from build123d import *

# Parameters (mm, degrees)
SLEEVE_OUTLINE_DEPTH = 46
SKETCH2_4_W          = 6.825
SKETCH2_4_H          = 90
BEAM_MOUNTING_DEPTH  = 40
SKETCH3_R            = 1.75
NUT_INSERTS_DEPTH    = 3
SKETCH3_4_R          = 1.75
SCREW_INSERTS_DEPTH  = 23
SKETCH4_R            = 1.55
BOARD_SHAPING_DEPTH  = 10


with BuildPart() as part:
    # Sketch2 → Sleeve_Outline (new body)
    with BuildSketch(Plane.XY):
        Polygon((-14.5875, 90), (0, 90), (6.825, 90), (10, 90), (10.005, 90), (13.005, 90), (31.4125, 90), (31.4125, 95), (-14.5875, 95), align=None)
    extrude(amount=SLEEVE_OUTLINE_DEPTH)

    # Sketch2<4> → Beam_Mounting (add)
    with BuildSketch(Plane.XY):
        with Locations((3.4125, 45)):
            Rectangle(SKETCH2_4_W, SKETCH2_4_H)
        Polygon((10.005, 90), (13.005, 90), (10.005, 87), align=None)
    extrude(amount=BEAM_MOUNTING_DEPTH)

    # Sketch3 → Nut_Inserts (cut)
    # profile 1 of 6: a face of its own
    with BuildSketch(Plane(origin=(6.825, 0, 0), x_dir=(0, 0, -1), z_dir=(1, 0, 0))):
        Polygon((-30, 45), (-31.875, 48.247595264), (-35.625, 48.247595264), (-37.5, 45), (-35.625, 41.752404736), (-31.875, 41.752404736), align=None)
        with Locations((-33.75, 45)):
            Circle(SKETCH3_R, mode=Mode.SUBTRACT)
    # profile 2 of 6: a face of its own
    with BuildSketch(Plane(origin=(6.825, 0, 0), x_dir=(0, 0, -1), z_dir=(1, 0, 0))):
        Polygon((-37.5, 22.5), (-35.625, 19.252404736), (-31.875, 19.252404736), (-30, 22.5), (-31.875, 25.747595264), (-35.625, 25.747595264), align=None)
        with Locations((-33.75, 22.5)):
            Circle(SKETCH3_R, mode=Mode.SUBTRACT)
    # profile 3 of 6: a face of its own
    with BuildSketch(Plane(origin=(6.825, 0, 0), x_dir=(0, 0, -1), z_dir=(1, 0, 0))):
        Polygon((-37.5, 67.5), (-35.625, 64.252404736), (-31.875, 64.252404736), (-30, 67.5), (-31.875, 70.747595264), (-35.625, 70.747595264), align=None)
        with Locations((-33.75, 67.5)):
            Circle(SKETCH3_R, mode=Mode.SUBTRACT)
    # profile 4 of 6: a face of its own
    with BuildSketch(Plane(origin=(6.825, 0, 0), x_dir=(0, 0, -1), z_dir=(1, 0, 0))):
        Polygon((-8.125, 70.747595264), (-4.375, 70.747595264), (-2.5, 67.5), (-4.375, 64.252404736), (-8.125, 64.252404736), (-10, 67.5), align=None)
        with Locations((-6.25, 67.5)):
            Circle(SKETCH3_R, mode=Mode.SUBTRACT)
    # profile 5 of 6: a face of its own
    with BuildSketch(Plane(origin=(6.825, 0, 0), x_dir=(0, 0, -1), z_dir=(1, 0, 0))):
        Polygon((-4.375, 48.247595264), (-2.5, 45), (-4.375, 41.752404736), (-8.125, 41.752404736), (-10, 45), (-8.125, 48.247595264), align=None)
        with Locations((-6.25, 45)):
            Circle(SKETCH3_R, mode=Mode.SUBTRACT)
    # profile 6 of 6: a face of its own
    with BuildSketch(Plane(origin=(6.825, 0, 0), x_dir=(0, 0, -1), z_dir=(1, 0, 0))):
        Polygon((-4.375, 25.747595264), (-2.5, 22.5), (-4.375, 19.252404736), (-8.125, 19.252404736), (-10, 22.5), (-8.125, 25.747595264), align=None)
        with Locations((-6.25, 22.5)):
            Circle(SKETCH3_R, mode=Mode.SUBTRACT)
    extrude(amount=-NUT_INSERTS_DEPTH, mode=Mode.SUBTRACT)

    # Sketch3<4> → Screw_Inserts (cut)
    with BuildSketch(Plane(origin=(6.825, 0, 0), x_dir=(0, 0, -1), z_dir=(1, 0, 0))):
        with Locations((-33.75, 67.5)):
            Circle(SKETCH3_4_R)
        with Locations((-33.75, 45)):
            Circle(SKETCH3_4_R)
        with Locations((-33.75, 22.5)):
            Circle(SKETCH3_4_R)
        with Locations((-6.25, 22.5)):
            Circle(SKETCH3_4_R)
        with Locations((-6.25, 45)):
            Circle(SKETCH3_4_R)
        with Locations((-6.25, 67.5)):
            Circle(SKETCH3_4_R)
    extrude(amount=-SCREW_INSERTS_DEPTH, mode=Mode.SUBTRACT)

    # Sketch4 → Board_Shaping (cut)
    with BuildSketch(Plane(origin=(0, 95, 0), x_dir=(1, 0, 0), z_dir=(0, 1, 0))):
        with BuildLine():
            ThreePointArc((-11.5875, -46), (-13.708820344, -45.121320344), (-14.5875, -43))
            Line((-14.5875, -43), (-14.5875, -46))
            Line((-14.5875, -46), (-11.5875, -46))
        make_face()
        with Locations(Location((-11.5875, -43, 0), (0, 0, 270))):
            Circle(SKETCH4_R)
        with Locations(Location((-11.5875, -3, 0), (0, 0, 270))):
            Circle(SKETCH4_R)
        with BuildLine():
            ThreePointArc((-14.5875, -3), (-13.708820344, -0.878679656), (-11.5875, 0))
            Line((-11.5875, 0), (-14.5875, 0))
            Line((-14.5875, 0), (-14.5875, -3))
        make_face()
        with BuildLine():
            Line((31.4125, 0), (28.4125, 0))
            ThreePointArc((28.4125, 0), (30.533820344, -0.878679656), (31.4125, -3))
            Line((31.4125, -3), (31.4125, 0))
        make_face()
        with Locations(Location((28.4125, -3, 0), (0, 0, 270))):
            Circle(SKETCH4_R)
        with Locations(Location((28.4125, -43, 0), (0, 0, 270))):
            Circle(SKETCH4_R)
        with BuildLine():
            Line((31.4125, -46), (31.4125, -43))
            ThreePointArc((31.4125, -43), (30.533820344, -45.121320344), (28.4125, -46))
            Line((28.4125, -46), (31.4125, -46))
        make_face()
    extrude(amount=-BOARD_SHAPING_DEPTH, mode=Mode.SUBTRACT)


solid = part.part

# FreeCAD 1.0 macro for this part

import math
import FreeCAD as App
import Part
import Sketcher
Q = App.Units.Quantity


def add_polygon(sketch, points):
    """Adds a closed chain of lines whose ends are joined by coincident constraints."""
    first, n = sketch.GeometryCount, len(points)
    for a, b in zip(points, points[1:] + points[:1]):
        sketch.addGeometry(Part.LineSegment(App.Vector(*a, 0), App.Vector(*b, 0)), False)
    for i in range(n):
        sketch.addConstraint(Sketcher.Constraint("Coincident", first + i, 2, first + (i + 1) % n, 1))

doc = App.newDocument("Part")
body = doc.addObject("PartDesign::Body", "Body")

# Sketch on XY plane
sketch1 = body.newObject("Sketcher::SketchObject", "Sketch")
sketch1.AttachmentSupport = (doc.getObject("XY_Plane"), [""])
sketch1.MapMode = "FlatFace"
add_polygon(sketch1, [(-15, 90), (31, 90), (31, 95), (-15, 95)])  # lines 0-3
sketch1.addConstraint(Sketcher.Constraint("Horizontal", 0))
sketch1.addConstraint(Sketcher.Constraint("Vertical", 1))
sketch1.addConstraint(Sketcher.Constraint("Horizontal", 2))
sketch1.addConstraint(Sketcher.Constraint("Vertical", 3))
sketch1.addConstraint(Sketcher.Constraint("DistanceX", 0, 1, 0, 2, 46.0))
sketch1.addConstraint(Sketcher.Constraint("DistanceY", 1, 1, 1, 2, 5.0))
sketch1.addConstraint(Sketcher.Constraint("DistanceY", -1, 1, 0, 2, 90.0))
sketch1.addConstraint(Sketcher.Constraint("DistanceX", -1, 1, 0, 2, 31.4125))
pad1 = body.newObject("PartDesign::Pad", "Pad")
pad1.Profile = sketch1
pad1.Length = 46

# Sketch on XY plane
sketch2 = body.newObject("Sketcher::SketchObject", "Sketch001")
sketch2.AttachmentSupport = (doc.getObject("XY_Plane"), [""])
sketch2.MapMode = "FlatFace"
add_polygon(sketch2, [(0, 90), (0, 0), (6.8, 0), (6.8, 90)])  # lines 0-3
add_polygon(sketch2, [(13, 90), (10, 90), (10, 87)])  # lines 4-6
sketch2.addConstraint(Sketcher.Constraint("Vertical", 0))
sketch2.addConstraint(Sketcher.Constraint("Horizontal", 1))
sketch2.addConstraint(Sketcher.Constraint("Vertical", 2))
sketch2.addConstraint(Sketcher.Constraint("Horizontal", 3))
sketch2.addConstraint(Sketcher.Constraint("Horizontal", 4))
sketch2.addConstraint(Sketcher.Constraint("Vertical", 5))
sketch2.addConstraint(Sketcher.Constraint("Coincident", 0, 2, -1, 1))
sketch2.addConstraint(Sketcher.Constraint("Horizontal", 3, 2, 4, 2))
sketch2.addConstraint(Sketcher.Constraint("Equal", 4, 5))
sketch2.addConstraint(Sketcher.Constraint("DistanceX", 4, 2, 4, 1, 3.0))
sketch2.addConstraint(Sketcher.Constraint("DistanceY", 0, 2, 0, 1, 90.0))
sketch2.addConstraint(Sketcher.Constraint("DistanceX", 1, 1, 1, 2, 6.825))
sketch2.addConstraint(Sketcher.Constraint("DistanceX", 2, 2, 4, 2, 3.18))
pad2 = body.newObject("PartDesign::Pad", "Pad001")
pad2.Profile = sketch2
pad2.Length = 40

# Sketch on YZ plane
sketch3 = body.newObject("Sketcher::SketchObject", "Sketch002")
sketch3.AttachmentSupport = (doc.getObject("YZ_Plane"), [""])
sketch3.MapMode = "FlatFace"
sketch3.AttachmentOffset = App.Placement(App.Vector(0, 0, 6.825), App.Rotation())
add_polygon(sketch3, [(45, 30), (48.2, 31.9), (48.2, 35.6), (45, 37.5), (41.8, 35.6), (41.8, 31.9)])  # lines 0-5
sketch3.addGeometry(Part.Circle(App.Vector(45, 33.8, 0), App.Vector(0, 0, 1), 1.8), False)  # 6
add_polygon(sketch3, [(22.5, 37.5), (19.3, 35.6), (19.3, 31.9), (22.5, 30), (25.7, 31.9), (25.7, 35.6)])  # lines 7-12
sketch3.addGeometry(Part.Circle(App.Vector(22.5, 33.8, 0), App.Vector(0, 0, 1), 1.8), False)  # 13
add_polygon(sketch3, [(67.5, 37.5), (64.3, 35.6), (64.3, 31.9), (67.5, 30), (70.7, 31.9), (70.7, 35.6)])  # lines 14-19
sketch3.addGeometry(Part.Circle(App.Vector(67.5, 33.8, 0), App.Vector(0, 0, 1), 1.8), False)  # 20
add_polygon(sketch3, [(70.7, 4.4), (70.7, 8.1), (67.5, 10), (64.3, 8.1), (64.3, 4.4), (67.5, 2.5)])  # lines 21-26
sketch3.addGeometry(Part.Circle(App.Vector(67.5, 6.2, 0), App.Vector(0, 0, 1), 1.8), False)  # 27
add_polygon(sketch3, [(45, 2.5), (48.2, 4.4), (48.2, 8.1), (45, 10), (41.8, 8.1), (41.8, 4.4)])  # lines 28-33
sketch3.addGeometry(Part.Circle(App.Vector(45, 6.2, 0), App.Vector(0, 0, 1), 1.8), False)  # 34
add_polygon(sketch3, [(22.5, 2.5), (25.7, 4.4), (25.7, 8.1), (22.5, 10), (19.3, 8.1), (19.3, 4.4)])  # lines 35-40
sketch3.addGeometry(Part.Circle(App.Vector(22.5, 6.2, 0), App.Vector(0, 0, 1), 1.8), False)  # 41
sketch3.addConstraint(Sketcher.Constraint("Vertical", 1))
sketch3.addConstraint(Sketcher.Constraint("Vertical", 4))
sketch3.addConstraint(Sketcher.Constraint("Vertical", 8))
sketch3.addConstraint(Sketcher.Constraint("Vertical", 11))
sketch3.addConstraint(Sketcher.Constraint("Vertical", 15))
sketch3.addConstraint(Sketcher.Constraint("Vertical", 18))
sketch3.addConstraint(Sketcher.Constraint("Vertical", 21))
sketch3.addConstraint(Sketcher.Constraint("Vertical", 24))
sketch3.addConstraint(Sketcher.Constraint("Vertical", 29))
sketch3.addConstraint(Sketcher.Constraint("Vertical", 32))
sketch3.addConstraint(Sketcher.Constraint("Vertical", 36))
sketch3.addConstraint(Sketcher.Constraint("Vertical", 39))
sketch3.addConstraint(Sketcher.Constraint("Equal", 6, 13))
sketch3.addConstraint(Sketcher.Constraint("Equal", 13, 20))
sketch3.addConstraint(Sketcher.Constraint("Equal", 20, 27))
sketch3.addConstraint(Sketcher.Constraint("Equal", 27, 34))
sketch3.addConstraint(Sketcher.Constraint("Equal", 34, 41))
sketch3.addConstraint(Sketcher.Constraint("Parallel", 0, 3))
sketch3.addConstraint(Sketcher.Constraint("Parallel", 2, 5))
sketch3.addConstraint(Sketcher.Constraint("Parallel", 3, 7))
sketch3.addConstraint(Sketcher.Constraint("Parallel", 5, 9))
sketch3.addConstraint(Sketcher.Constraint("Parallel", 7, 10))
sketch3.addConstraint(Sketcher.Constraint("Parallel", 9, 12))
sketch3.addConstraint(Sketcher.Constraint("Parallel", 10, 14))
sketch3.addConstraint(Sketcher.Constraint("Parallel", 12, 16))
sketch3.addConstraint(Sketcher.Constraint("Parallel", 14, 17))
sketch3.addConstraint(Sketcher.Constraint("Parallel", 16, 19))
sketch3.addConstraint(Sketcher.Constraint("Parallel", 19, 22))
sketch3.addConstraint(Sketcher.Constraint("Parallel", 17, 23))
sketch3.addConstraint(Sketcher.Constraint("Parallel", 22, 25))
sketch3.addConstraint(Sketcher.Constraint("Parallel", 23, 26))
sketch3.addConstraint(Sketcher.Constraint("Parallel", 26, 28))
sketch3.addConstraint(Sketcher.Constraint("Parallel", 25, 30))
sketch3.addConstraint(Sketcher.Constraint("Parallel", 28, 31))
sketch3.addConstraint(Sketcher.Constraint("Parallel", 30, 33))
sketch3.addConstraint(Sketcher.Constraint("Parallel", 31, 35))
sketch3.addConstraint(Sketcher.Constraint("Parallel", 33, 37))
sketch3.addConstraint(Sketcher.Constraint("Parallel", 35, 38))
sketch3.addConstraint(Sketcher.Constraint("Parallel", 37, 40))
sketch3.addConstraint(Sketcher.Constraint("Horizontal", 6, 3, 13, 3))
sketch3.addConstraint(Sketcher.Constraint("Horizontal", 13, 3, 20, 3))
sketch3.addConstraint(Sketcher.Constraint("Horizontal", 27, 3, 34, 3))
sketch3.addConstraint(Sketcher.Constraint("Horizontal", 34, 3, 41, 3))
sketch3.addConstraint(Sketcher.Constraint("Horizontal", 1, 2, 3, 2))
sketch3.addConstraint(Sketcher.Constraint("Horizontal", 0, 2, 4, 2))
sketch3.addConstraint(Sketcher.Constraint("Horizontal", 3, 2, 7, 2))
sketch3.addConstraint(Sketcher.Constraint("Horizontal", 4, 2, 8, 2))
sketch3.addConstraint(Sketcher.Constraint("Horizontal", 5, 2, 9, 2))
sketch3.addConstraint(Sketcher.Constraint("Horizontal", 8, 2, 10, 2))
sketch3.addConstraint(Sketcher.Constraint("Horizontal", 7, 2, 11, 2))
sketch3.addConstraint(Sketcher.Constraint("Horizontal", 11, 2, 14, 2))
sketch3.addConstraint(Sketcher.Constraint("Horizontal", 10, 2, 15, 2))
sketch3.addConstraint(Sketcher.Constraint("Horizontal", 9, 2, 16, 2))
sketch3.addConstraint(Sketcher.Constraint("Horizontal", 15, 2, 17, 2))
sketch3.addConstraint(Sketcher.Constraint("Horizontal", 14, 2, 18, 2))
sketch3.addConstraint(Sketcher.Constraint("Horizontal", 21, 2, 23, 2))
sketch3.addConstraint(Sketcher.Constraint("Horizontal", 24, 2, 26, 2))
sketch3.addConstraint(Sketcher.Constraint("Horizontal", 26, 2, 28, 2))
sketch3.addConstraint(Sketcher.Constraint("Horizontal", 23, 2, 29, 2))
sketch3.addConstraint(Sketcher.Constraint("Horizontal", 22, 2, 30, 2))
sketch3.addConstraint(Sketcher.Constraint("Horizontal", 29, 2, 31, 2))
sketch3.addConstraint(Sketcher.Constraint("Horizontal", 28, 2, 32, 2))
sketch3.addConstraint(Sketcher.Constraint("Horizontal", 32, 2, 35, 2))
sketch3.addConstraint(Sketcher.Constraint("Horizontal", 31, 2, 36, 2))
sketch3.addConstraint(Sketcher.Constraint("Horizontal", 30, 2, 37, 2))
sketch3.addConstraint(Sketcher.Constraint("Horizontal", 36, 2, 38, 2))
sketch3.addConstraint(Sketcher.Constraint("Horizontal", 35, 2, 39, 2))
sketch3.addConstraint(Sketcher.Constraint("Vertical", 20, 3, 27, 3))
sketch3.addConstraint(Sketcher.Constraint("Vertical", 6, 3, 34, 3))
sketch3.addConstraint(Sketcher.Constraint("Vertical", 13, 3, 41, 3))
sketch3.addConstraint(Sketcher.Constraint("Vertical", 34, 3, 2, 2))
sketch3.addConstraint(Sketcher.Constraint("Vertical", 2, 2, 5, 2))
sketch3.addConstraint(Sketcher.Constraint("Vertical", 41, 3, 9, 2))
sketch3.addConstraint(Sketcher.Constraint("Vertical", 27, 3, 16, 2))
sketch3.addConstraint(Sketcher.Constraint("Vertical", 18, 2, 21, 2))
sketch3.addConstraint(Sketcher.Constraint("Vertical", 19, 2, 22, 2))
sketch3.addConstraint(Sketcher.Constraint("Vertical", 1, 2, 28, 2))
sketch3.addConstraint(Sketcher.Constraint("Vertical", 11, 2, 35, 2))
sketch3.addConstraint(Sketcher.Constraint("Equal", 18, 21))
sketch3.addConstraint(Sketcher.Constraint("Diameter", 6, 3.5))
sketch3.addConstraint(Sketcher.Constraint("Angle", 0, Q("30 deg")))
sketch3.addConstraint(Sketcher.Constraint("DistanceX", -1, 1, 6, 3, 45.0))
sketch3.addConstraint(Sketcher.Constraint("DistanceY", -1, 1, 5, 2, 30.0))
sketch3.addConstraint(Sketcher.Constraint("DistanceY", -1, 1, 22, 2, 10.0))
sketch3.addConstraint(Sketcher.Constraint("DistanceX", 13, 3, 20, 3, 45.0))
sketch3.addConstraint(Sketcher.Constraint("DistanceY", 1, 1, 1, 2, 3.75))
sketch3.addConstraint(Sketcher.Constraint("DistanceX", -1, 1, 13, 3, 22.5))
sketch3.addConstraint(Sketcher.Constraint("DistanceY", -1, 1, 2, 2, 37.5))
sketch3.addConstraint(Sketcher.Constraint("DistanceY", 27, 3, 20, 3, 27.5))
sketch3.addConstraint(Sketcher.Constraint("DistanceY", -1, 1, 6, 3, 33.75))
pocket1 = body.newObject("PartDesign::Pocket", "Pocket")
pocket1.Profile = sketch3
pocket1.Length = 3

# Sketch on YZ plane
sketch4 = body.newObject("Sketcher::SketchObject", "Sketch003")
sketch4.AttachmentSupport = (doc.getObject("YZ_Plane"), [""])
sketch4.MapMode = "FlatFace"
sketch4.AttachmentOffset = App.Placement(App.Vector(0, 0, 6.825), App.Rotation())
sketch4.addGeometry(Part.Circle(App.Vector(67.5, 33.8, 0), App.Vector(0, 0, 1), 1.8), False)
sketch4.addGeometry(Part.Circle(App.Vector(45, 33.8, 0), App.Vector(0, 0, 1), 1.8), False)
sketch4.addGeometry(Part.Circle(App.Vector(22.5, 33.8, 0), App.Vector(0, 0, 1), 1.8), False)
sketch4.addGeometry(Part.Circle(App.Vector(22.5, 6.2, 0), App.Vector(0, 0, 1), 1.8), False)
sketch4.addGeometry(Part.Circle(App.Vector(45, 6.2, 0), App.Vector(0, 0, 1), 1.8), False)
sketch4.addGeometry(Part.Circle(App.Vector(67.5, 6.2, 0), App.Vector(0, 0, 1), 1.8), False)
sketch4.addConstraint(Sketcher.Constraint("Equal", 0, 1))
sketch4.addConstraint(Sketcher.Constraint("Equal", 1, 2))
sketch4.addConstraint(Sketcher.Constraint("Equal", 2, 3))
sketch4.addConstraint(Sketcher.Constraint("Equal", 3, 4))
sketch4.addConstraint(Sketcher.Constraint("Equal", 4, 5))
sketch4.addConstraint(Sketcher.Constraint("Horizontal", 0, 3, 1, 3))
sketch4.addConstraint(Sketcher.Constraint("Horizontal", 1, 3, 2, 3))
sketch4.addConstraint(Sketcher.Constraint("Horizontal", 3, 3, 4, 3))
sketch4.addConstraint(Sketcher.Constraint("Horizontal", 4, 3, 5, 3))
sketch4.addConstraint(Sketcher.Constraint("Vertical", 2, 3, 3, 3))
sketch4.addConstraint(Sketcher.Constraint("Vertical", 1, 3, 4, 3))
sketch4.addConstraint(Sketcher.Constraint("Vertical", 0, 3, 5, 3))
sketch4.addConstraint(Sketcher.Constraint("Diameter", 0, 3.5))
sketch4.addConstraint(Sketcher.Constraint("DistanceX", -1, 1, 1, 3, 45.0))
sketch4.addConstraint(Sketcher.Constraint("DistanceX", 2, 3, 0, 3, 45.0))
sketch4.addConstraint(Sketcher.Constraint("DistanceX", -1, 1, 0, 3, 67.5))
sketch4.addConstraint(Sketcher.Constraint("DistanceY", 3, 3, 2, 3, 27.5))
sketch4.addConstraint(Sketcher.Constraint("DistanceY", -1, 1, 0, 3, 33.75))
pocket2 = body.newObject("PartDesign::Pocket", "Pocket001")
pocket2.Profile = sketch4
pocket2.Length = 23

# Sketch on XZ plane
sketch5 = body.newObject("Sketcher::SketchObject", "Sketch004")
sketch5.AttachmentSupport = (doc.getObject("XZ_Plane"), [""])
sketch5.MapMode = "FlatFace"
sketch5.AttachmentOffset = App.Placement(App.Vector(0, 0, -95), App.Rotation())
sketch5.addGeometry(Part.ArcOfCircle(Part.Circle(App.Vector(-11.6, 43, 0), App.Vector(0, 0, 1), 3), math.radians(90), math.radians(180)), False)
sketch5.addGeometry(Part.LineSegment(App.Vector(-14.6, 43, 0), App.Vector(-14.6, 46, 0)), False)
sketch5.addGeometry(Part.LineSegment(App.Vector(-14.6, 46, 0), App.Vector(-11.6, 46, 0)), False)
sketch5.addGeometry(Part.Circle(App.Vector(-11.6, 43, 0), App.Vector(0, 0, 1), 1.6), False)
sketch5.addGeometry(Part.Circle(App.Vector(-11.6, 3, 0), App.Vector(0, 0, 1), 1.6), False)
sketch5.addGeometry(Part.ArcOfCircle(Part.Circle(App.Vector(-11.6, 3, 0), App.Vector(0, 0, 1), 3), math.radians(180), math.radians(270)), False)
sketch5.addGeometry(Part.LineSegment(App.Vector(-11.6, 0, 0), App.Vector(-14.6, 0, 0)), False)
sketch5.addGeometry(Part.LineSegment(App.Vector(-14.6, 0, 0), App.Vector(-14.6, 3, 0)), False)
sketch5.addGeometry(Part.LineSegment(App.Vector(31.4, 0, 0), App.Vector(28.4, 0, 0)), False)
sketch5.addGeometry(Part.ArcOfCircle(Part.Circle(App.Vector(28.4, 3, 0), App.Vector(0, 0, 1), 3), math.radians(-90), math.radians(0)), False)
sketch5.addGeometry(Part.LineSegment(App.Vector(31.4, 3, 0), App.Vector(31.4, 0, 0)), False)
sketch5.addGeometry(Part.Circle(App.Vector(28.4, 3, 0), App.Vector(0, 0, 1), 1.6), False)
sketch5.addGeometry(Part.Circle(App.Vector(28.4, 43, 0), App.Vector(0, 0, 1), 1.6), False)
sketch5.addGeometry(Part.LineSegment(App.Vector(31.4, 46, 0), App.Vector(31.4, 43, 0)), False)
sketch5.addGeometry(Part.ArcOfCircle(Part.Circle(App.Vector(28.4, 43, 0), App.Vector(0, 0, 1), 3), math.radians(0), math.radians(90)), False)
sketch5.addGeometry(Part.LineSegment(App.Vector(28.4, 46, 0), App.Vector(31.4, 46, 0)), False)
sketch5.addConstraint(Sketcher.Constraint("Tangent", 0, 2, 1, 1))
sketch5.addConstraint(Sketcher.Constraint("Coincident", 1, 2, 2, 1))
sketch5.addConstraint(Sketcher.Constraint("Tangent", 2, 2, 0, 1))
sketch5.addConstraint(Sketcher.Constraint("Tangent", 5, 2, 6, 1))
sketch5.addConstraint(Sketcher.Constraint("Coincident", 6, 2, 7, 1))
sketch5.addConstraint(Sketcher.Constraint("Tangent", 7, 2, 5, 1))
sketch5.addConstraint(Sketcher.Constraint("Tangent", 8, 2, 9, 1))
sketch5.addConstraint(Sketcher.Constraint("Tangent", 9, 2, 10, 1))
sketch5.addConstraint(Sketcher.Constraint("Coincident", 10, 2, 8, 1))
sketch5.addConstraint(Sketcher.Constraint("Tangent", 13, 2, 14, 1))
sketch5.addConstraint(Sketcher.Constraint("Tangent", 14, 2, 15, 1))
sketch5.addConstraint(Sketcher.Constraint("Coincident", 15, 2, 13, 1))
sketch5.addConstraint(Sketcher.Constraint("Vertical", 1))
sketch5.addConstraint(Sketcher.Constraint("Horizontal", 2))
sketch5.addConstraint(Sketcher.Constraint("Horizontal", 6))
sketch5.addConstraint(Sketcher.Constraint("Vertical", 7))
sketch5.addConstraint(Sketcher.Constraint("Horizontal", 8))
sketch5.addConstraint(Sketcher.Constraint("Vertical", 10))
sketch5.addConstraint(Sketcher.Constraint("Vertical", 13))
sketch5.addConstraint(Sketcher.Constraint("Horizontal", 15))
sketch5.addConstraint(Sketcher.Constraint("Coincident", 3, 3, 0, 3))
sketch5.addConstraint(Sketcher.Constraint("Coincident", 5, 3, 4, 3))
sketch5.addConstraint(Sketcher.Constraint("Coincident", 11, 3, 9, 3))
sketch5.addConstraint(Sketcher.Constraint("Coincident", 14, 3, 12, 3))
sketch5.addConstraint(Sketcher.Constraint("Equal", 3, 4))
sketch5.addConstraint(Sketcher.Constraint("Equal", 0, 5))
sketch5.addConstraint(Sketcher.Constraint("Equal", 5, 9))
sketch5.addConstraint(Sketcher.Constraint("Equal", 4, 11))
sketch5.addConstraint(Sketcher.Constraint("Equal", 11, 12))
sketch5.addConstraint(Sketcher.Constraint("Equal", 9, 14))
sketch5.addConstraint(Sketcher.Constraint("PointOnObject", 5, 2, -1))
sketch5.addConstraint(Sketcher.Constraint("PointOnObject", 8, 2, -1))
sketch5.addConstraint(Sketcher.Constraint("Horizontal", 3, 3, 12, 3))
sketch5.addConstraint(Sketcher.Constraint("Vertical", 3, 3, 4, 3))
sketch5.addConstraint(Sketcher.Constraint("Vertical", 11, 3, 12, 3))
sketch5.addConstraint(Sketcher.Constraint("Radius", 0, 3.0))
sketch5.addConstraint(Sketcher.Constraint("Diameter", 3, 3.1))
sketch5.addConstraint(Sketcher.Constraint("DistanceY", -1, 1, 0, 3, 43.0))
sketch5.addConstraint(Sketcher.Constraint("DistanceX", 4, 3, 9, 3, 40.0))
sketch5.addConstraint(Sketcher.Constraint("DistanceX", 0, 3, -1, 1, 11.5875))
pocket3 = body.newObject("PartDesign::Pocket", "Pocket002")
pocket3.Profile = sketch5
pocket3.Length = 10
pocket3.Reversed = True

doc.recompute()
